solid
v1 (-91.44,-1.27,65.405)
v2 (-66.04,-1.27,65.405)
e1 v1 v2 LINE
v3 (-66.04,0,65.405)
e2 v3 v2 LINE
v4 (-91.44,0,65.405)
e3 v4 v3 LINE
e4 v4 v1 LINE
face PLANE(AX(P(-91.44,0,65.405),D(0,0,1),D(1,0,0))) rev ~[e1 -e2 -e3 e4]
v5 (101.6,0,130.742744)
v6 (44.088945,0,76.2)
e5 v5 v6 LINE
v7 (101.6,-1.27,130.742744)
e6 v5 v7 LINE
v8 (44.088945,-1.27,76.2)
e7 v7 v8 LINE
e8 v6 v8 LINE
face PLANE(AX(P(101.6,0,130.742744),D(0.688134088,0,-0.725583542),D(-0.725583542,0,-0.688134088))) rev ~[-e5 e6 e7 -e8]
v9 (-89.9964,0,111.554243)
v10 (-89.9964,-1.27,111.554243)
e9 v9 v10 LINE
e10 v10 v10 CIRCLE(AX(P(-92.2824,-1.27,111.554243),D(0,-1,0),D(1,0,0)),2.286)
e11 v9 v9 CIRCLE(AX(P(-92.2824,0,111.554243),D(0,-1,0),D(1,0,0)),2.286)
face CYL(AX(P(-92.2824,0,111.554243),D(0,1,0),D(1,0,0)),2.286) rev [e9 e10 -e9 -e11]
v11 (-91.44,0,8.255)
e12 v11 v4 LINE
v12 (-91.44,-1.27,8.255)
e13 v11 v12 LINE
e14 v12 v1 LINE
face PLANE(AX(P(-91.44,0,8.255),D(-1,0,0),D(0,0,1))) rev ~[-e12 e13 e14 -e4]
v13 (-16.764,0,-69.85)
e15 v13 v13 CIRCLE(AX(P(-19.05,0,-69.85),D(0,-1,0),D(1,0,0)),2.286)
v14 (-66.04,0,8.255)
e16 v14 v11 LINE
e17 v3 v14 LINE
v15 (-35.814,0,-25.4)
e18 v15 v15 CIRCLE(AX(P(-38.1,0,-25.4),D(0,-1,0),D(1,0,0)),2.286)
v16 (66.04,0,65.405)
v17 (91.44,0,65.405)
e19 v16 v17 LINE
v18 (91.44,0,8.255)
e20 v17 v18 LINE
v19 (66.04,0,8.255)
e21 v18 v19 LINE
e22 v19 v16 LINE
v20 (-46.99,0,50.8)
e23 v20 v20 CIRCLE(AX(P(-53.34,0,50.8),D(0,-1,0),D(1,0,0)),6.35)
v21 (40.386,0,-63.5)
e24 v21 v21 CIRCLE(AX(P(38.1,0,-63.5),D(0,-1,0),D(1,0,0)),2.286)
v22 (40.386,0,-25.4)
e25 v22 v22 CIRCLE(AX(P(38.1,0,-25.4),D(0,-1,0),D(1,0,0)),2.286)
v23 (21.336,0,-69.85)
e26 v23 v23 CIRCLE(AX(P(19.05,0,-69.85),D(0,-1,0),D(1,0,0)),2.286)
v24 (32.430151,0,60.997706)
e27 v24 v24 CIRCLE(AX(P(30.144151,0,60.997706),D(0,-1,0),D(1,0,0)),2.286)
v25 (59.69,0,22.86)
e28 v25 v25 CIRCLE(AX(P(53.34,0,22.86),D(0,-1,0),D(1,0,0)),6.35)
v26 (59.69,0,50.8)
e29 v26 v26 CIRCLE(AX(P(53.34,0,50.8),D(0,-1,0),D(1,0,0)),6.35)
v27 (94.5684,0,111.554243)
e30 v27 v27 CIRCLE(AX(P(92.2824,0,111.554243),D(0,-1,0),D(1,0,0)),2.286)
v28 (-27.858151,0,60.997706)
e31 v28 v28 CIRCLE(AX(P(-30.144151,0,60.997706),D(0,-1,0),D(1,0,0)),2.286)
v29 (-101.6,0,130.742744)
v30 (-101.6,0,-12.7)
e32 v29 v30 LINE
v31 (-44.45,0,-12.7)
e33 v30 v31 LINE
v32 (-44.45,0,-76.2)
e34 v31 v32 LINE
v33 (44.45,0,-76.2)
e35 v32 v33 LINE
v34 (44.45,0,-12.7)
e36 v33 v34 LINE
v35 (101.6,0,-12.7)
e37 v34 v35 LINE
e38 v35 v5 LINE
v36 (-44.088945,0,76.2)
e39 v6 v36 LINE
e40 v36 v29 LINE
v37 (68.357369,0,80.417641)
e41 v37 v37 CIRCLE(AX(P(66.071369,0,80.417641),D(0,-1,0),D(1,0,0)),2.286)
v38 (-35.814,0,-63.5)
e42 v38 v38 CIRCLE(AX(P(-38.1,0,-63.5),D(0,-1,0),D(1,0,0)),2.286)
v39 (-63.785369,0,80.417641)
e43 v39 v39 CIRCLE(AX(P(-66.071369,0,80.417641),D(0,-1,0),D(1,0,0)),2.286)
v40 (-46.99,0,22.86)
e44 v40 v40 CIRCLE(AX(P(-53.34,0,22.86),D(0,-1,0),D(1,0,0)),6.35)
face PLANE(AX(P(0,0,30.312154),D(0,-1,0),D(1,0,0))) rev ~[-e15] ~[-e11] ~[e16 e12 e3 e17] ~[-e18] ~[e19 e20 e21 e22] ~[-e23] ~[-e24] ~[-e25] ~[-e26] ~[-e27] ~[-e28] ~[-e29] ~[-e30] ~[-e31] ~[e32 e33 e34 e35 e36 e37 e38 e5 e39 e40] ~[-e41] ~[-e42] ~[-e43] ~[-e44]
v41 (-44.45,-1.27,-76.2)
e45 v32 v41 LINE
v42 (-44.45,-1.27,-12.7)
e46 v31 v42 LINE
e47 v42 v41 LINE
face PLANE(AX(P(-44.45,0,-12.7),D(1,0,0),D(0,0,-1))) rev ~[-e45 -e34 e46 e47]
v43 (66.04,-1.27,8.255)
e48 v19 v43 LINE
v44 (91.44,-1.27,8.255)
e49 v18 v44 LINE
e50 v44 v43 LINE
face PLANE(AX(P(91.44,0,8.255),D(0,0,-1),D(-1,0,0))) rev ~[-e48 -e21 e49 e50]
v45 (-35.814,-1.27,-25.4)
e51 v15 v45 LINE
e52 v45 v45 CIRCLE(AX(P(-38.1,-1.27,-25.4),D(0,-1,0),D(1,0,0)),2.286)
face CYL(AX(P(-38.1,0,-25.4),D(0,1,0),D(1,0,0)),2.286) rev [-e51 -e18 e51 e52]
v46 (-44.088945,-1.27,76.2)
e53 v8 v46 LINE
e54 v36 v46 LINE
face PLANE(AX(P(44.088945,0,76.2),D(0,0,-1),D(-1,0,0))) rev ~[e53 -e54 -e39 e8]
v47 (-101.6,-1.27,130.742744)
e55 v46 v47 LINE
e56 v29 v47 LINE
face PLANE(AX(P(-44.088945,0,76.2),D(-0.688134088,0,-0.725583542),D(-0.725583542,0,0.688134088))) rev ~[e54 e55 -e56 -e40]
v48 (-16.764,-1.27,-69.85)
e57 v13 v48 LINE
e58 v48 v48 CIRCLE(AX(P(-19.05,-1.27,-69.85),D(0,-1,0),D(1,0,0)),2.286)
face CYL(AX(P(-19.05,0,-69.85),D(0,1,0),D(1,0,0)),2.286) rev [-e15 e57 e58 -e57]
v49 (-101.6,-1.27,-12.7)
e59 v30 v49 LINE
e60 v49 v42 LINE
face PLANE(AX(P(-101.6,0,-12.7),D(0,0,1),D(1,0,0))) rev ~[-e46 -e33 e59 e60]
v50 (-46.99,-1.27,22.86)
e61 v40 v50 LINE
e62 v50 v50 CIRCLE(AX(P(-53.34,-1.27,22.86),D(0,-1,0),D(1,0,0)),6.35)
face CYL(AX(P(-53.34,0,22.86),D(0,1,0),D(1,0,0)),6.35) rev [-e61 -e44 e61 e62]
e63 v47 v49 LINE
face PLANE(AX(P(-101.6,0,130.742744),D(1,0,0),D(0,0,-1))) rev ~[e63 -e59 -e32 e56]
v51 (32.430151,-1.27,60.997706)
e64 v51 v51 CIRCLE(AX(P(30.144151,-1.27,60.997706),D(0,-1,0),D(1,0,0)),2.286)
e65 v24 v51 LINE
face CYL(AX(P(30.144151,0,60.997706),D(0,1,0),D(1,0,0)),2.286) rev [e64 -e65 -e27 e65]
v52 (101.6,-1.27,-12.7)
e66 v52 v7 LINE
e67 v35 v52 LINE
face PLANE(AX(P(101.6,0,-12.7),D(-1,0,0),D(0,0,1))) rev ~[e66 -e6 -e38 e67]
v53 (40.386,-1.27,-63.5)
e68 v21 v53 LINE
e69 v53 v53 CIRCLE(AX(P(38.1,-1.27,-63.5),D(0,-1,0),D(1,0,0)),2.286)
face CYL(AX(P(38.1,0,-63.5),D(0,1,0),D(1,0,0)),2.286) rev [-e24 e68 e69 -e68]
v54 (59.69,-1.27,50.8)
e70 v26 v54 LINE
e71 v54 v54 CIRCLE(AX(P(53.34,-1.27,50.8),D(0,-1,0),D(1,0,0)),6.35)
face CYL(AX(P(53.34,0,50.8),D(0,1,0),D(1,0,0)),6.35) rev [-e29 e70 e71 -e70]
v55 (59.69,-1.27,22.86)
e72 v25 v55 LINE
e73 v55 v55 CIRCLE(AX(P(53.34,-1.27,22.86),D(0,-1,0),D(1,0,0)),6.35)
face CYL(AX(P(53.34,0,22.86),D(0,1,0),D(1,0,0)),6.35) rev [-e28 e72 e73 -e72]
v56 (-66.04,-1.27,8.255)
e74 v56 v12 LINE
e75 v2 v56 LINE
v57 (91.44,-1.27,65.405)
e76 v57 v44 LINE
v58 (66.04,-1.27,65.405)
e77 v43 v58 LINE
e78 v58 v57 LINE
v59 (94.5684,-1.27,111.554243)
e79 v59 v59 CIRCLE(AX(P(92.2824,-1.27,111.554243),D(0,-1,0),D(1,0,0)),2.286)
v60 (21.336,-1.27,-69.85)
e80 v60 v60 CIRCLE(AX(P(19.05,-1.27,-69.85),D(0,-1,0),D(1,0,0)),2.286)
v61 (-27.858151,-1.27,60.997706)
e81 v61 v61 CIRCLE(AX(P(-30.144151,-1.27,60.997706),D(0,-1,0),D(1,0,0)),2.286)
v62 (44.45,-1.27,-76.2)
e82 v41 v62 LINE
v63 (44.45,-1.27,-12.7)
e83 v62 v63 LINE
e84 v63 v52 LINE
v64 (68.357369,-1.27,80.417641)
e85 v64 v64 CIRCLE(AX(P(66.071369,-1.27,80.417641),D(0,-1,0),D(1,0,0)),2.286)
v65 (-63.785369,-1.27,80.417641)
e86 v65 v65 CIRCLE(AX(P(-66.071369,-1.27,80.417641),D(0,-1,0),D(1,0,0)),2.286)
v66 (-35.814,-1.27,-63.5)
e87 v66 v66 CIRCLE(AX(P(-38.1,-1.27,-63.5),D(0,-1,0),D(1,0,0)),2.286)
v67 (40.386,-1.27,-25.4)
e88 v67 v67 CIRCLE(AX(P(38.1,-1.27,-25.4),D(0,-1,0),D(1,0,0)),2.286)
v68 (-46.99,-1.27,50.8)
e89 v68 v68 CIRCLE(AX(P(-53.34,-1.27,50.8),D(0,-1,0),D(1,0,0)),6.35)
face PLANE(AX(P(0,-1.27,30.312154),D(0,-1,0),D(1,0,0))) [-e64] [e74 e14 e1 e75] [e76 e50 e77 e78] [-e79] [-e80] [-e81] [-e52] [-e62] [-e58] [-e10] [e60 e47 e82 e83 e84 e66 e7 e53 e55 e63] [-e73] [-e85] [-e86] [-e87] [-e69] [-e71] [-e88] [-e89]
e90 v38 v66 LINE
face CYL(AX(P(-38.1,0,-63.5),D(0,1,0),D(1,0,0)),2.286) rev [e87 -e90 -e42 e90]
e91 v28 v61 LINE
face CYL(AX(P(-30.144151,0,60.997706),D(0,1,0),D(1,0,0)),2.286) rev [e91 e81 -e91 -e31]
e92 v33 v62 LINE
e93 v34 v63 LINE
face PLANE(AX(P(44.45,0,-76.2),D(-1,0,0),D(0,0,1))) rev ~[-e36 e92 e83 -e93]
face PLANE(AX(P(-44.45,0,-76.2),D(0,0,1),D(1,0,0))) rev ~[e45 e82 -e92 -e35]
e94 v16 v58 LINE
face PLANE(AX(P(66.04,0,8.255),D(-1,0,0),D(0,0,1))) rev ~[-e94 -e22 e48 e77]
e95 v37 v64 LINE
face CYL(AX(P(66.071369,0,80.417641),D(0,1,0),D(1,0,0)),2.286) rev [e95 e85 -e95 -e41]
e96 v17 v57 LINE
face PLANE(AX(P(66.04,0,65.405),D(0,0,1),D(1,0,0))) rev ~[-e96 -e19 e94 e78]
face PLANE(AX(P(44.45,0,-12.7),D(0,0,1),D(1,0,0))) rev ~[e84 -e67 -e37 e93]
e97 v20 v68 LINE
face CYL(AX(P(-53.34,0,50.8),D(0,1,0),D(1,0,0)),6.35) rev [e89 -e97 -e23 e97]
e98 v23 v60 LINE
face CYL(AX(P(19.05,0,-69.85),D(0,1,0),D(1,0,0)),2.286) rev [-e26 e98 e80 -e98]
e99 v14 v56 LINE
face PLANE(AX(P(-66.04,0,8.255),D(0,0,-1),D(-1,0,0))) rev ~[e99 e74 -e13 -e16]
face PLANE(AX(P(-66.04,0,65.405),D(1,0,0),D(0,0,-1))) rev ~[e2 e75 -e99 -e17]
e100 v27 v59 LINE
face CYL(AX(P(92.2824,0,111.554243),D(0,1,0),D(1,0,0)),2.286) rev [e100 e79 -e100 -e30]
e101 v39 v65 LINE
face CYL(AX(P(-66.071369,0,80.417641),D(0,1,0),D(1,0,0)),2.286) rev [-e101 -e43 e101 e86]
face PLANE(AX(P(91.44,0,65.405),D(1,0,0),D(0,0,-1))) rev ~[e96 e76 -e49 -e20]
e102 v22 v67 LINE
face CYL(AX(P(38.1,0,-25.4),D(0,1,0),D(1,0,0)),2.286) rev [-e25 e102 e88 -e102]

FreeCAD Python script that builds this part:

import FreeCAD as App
import Part
import Sketcher
Q = App.Units.Quantity


def add_polygon(sketch, points):
    """Adds a closed chain of lines whose ends are joined by coincident constraints."""
    first, n = sketch.GeometryCount, len(points)
    for a, b in zip(points, points[1:] + points[:1]):
        sketch.addGeometry(Part.LineSegment(App.Vector(*a, 0), App.Vector(*b, 0)), False)
    for i in range(n):
        sketch.addConstraint(Sketcher.Constraint("Coincident", first + i, 2, first + (i + 1) % n, 1))

doc = App.newDocument("Part")
body = doc.addObject("PartDesign::Body", "Body")

sketch1 = doc.addObject("Sketcher::SketchObject", "Sketch")
body.addObject(sketch1)
sketch1.AttachmentSupport = (doc.XZ_Plane, [""])
sketch1.MapMode = "FlatFace"
add_polygon(sketch1, [(101.6, 130.742744), (44.088945, 76.2), (-44.088945, 76.2), (-101.6, 130.742744), (-101.6, -12.7), (-44.45, -12.7), (-44.45, -76.2), (44.45, -76.2), (44.45, -12.7), (101.6, -12.7)])
sketch1.addGeometry(Part.Circle(App.Vector(-38.1, -63.5, 0), App.Vector(0, 0, 1), 2.286), False)
sketch1.addGeometry(Part.Circle(App.Vector(-19.05, -69.85, 0), App.Vector(0, 0, 1), 2.286), False)
sketch1.addGeometry(Part.Circle(App.Vector(-38.1, -25.4, 0), App.Vector(0, 0, 1), 2.286), False)
sketch1.addGeometry(Part.Circle(App.Vector(19.05, -69.85, 0), App.Vector(0, 0, 1), 2.286), False)
sketch1.addGeometry(Part.Circle(App.Vector(38.1, -63.5, 0), App.Vector(0, 0, 1), 2.286), False)
sketch1.addGeometry(Part.Circle(App.Vector(38.1, -25.4, 0), App.Vector(0, 0, 1), 2.286), False)
add_polygon(sketch1, [(-66.04, 8.255), (-91.44, 8.255), (-91.44, 65.405), (-66.04, 65.405)])
sketch1.addGeometry(Part.Circle(App.Vector(-53.34, 22.86, 0), App.Vector(0, 0, 1), 6.35), False)
sketch1.addGeometry(Part.Circle(App.Vector(-53.34, 50.8, 0), App.Vector(0, 0, 1), 6.35), False)
sketch1.addGeometry(Part.Circle(App.Vector(-30.144151, 60.997706, 0), App.Vector(0, 0, 1), 2.286), False)
sketch1.addGeometry(Part.Circle(App.Vector(-66.071369, 80.417641, 0), App.Vector(0, 0, 1), 2.286), False)
sketch1.addGeometry(Part.Circle(App.Vector(-92.2824, 111.554243, 0), App.Vector(0, 0, 1), 2.286), False)
sketch1.addGeometry(Part.Circle(App.Vector(30.144151, 60.997706, 0), App.Vector(0, 0, 1), 2.286), False)
sketch1.addGeometry(Part.Circle(App.Vector(53.34, 22.86, 0), App.Vector(0, 0, 1), 6.35), False)
add_polygon(sketch1, [(91.44, 65.405), (91.44, 8.255), (66.04, 8.255), (66.04, 65.405)])
sketch1.addGeometry(Part.Circle(App.Vector(53.34, 50.8, 0), App.Vector(0, 0, 1), 6.35), False)
sketch1.addGeometry(Part.Circle(App.Vector(66.071369, 80.417641, 0), App.Vector(0, 0, 1), 2.286), False)
sketch1.addGeometry(Part.Circle(App.Vector(92.2824, 111.554243, 0), App.Vector(0, 0, 1), 2.286), False)
sketch1.addConstraint(Sketcher.Constraint("Horizontal", 1))
sketch1.addConstraint(Sketcher.Constraint("Vertical", 3))
sketch1.addConstraint(Sketcher.Constraint("Horizontal", 4))
sketch1.addConstraint(Sketcher.Constraint("Vertical", 5))
sketch1.addConstraint(Sketcher.Constraint("Horizontal", 6))
sketch1.addConstraint(Sketcher.Constraint("Vertical", 7))
sketch1.addConstraint(Sketcher.Constraint("Horizontal", 8))
sketch1.addConstraint(Sketcher.Constraint("Vertical", 9))
sketch1.addConstraint(Sketcher.Constraint("Horizontal", 16))
sketch1.addConstraint(Sketcher.Constraint("Vertical", 17))
sketch1.addConstraint(Sketcher.Constraint("Horizontal", 18))
sketch1.addConstraint(Sketcher.Constraint("Vertical", 19))
sketch1.addConstraint(Sketcher.Constraint("Vertical", 27))
sketch1.addConstraint(Sketcher.Constraint("Horizontal", 28))
sketch1.addConstraint(Sketcher.Constraint("Vertical", 29))
sketch1.addConstraint(Sketcher.Constraint("Horizontal", 30))
sketch1.addConstraint(Sketcher.Constraint("Equal", 10, 11))
sketch1.addConstraint(Sketcher.Constraint("Equal", 11, 12))
sketch1.addConstraint(Sketcher.Constraint("Equal", 12, 13))
sketch1.addConstraint(Sketcher.Constraint("Equal", 13, 14))
sketch1.addConstraint(Sketcher.Constraint("Equal", 14, 15))
sketch1.addConstraint(Sketcher.Constraint("Equal", 20, 21))
sketch1.addConstraint(Sketcher.Constraint("Equal", 15, 22))
sketch1.addConstraint(Sketcher.Constraint("Equal", 22, 23))
sketch1.addConstraint(Sketcher.Constraint("Equal", 23, 24))
sketch1.addConstraint(Sketcher.Constraint("Equal", 24, 25))
sketch1.addConstraint(Sketcher.Constraint("Equal", 21, 26))
sketch1.addConstraint(Sketcher.Constraint("Equal", 26, 31))
sketch1.addConstraint(Sketcher.Constraint("Equal", 25, 32))
sketch1.addConstraint(Sketcher.Constraint("Equal", 32, 33))
sketch1.addConstraint(Sketcher.Constraint("Symmetric", 11, 3, 13, 3, -2))
sketch1.addConstraint(Sketcher.Constraint("Symmetric", 10, 3, 14, 3, -2))
sketch1.addConstraint(Sketcher.Constraint("Symmetric", 12, 3, 15, 3, -2))
sketch1.addConstraint(Sketcher.Constraint("Symmetric", 22, 3, 25, 3, -2))
sketch1.addConstraint(Sketcher.Constraint("Symmetric", 20, 3, 26, 3, -2))
sketch1.addConstraint(Sketcher.Constraint("Symmetric", 21, 3, 31, 3, -2))
sketch1.addConstraint(Sketcher.Constraint("Symmetric", 23, 3, 32, 3, -2))
sketch1.addConstraint(Sketcher.Constraint("Symmetric", 24, 3, 33, 3, -2))
sketch1.addConstraint(Sketcher.Constraint("Symmetric", 4, 2, 7, 2, -2))
sketch1.addConstraint(Sketcher.Constraint("Symmetric", 2, 2, 9, 2, -2))
sketch1.addConstraint(Sketcher.Constraint("Symmetric", 16, 2, 27, 2, -2))
sketch1.addConstraint(Sketcher.Constraint("Symmetric", 18, 2, 29, 2, -2))
sketch1.addConstraint(Sketcher.Constraint("Vertical", 10, 3, 12, 3))
sketch1.addConstraint(Sketcher.Constraint("Vertical", 20, 3, 21, 3))
sketch1.addConstraint(Sketcher.Constraint("Equal", 8, 17))
sketch1.addConstraint(Sketcher.Constraint("Equal", 0, 2))
sketch1.addConstraint(Sketcher.Constraint("Diameter", 20, Q("0.5 in")))
sketch1.addConstraint(Sketcher.Constraint("Diameter", 10, Q("0.18 in")))
sketch1.addConstraint(Sketcher.Constraint("DistanceX", 16, 2, 16, 1, Q("1 in")))
sketch1.addConstraint(Sketcher.Constraint("DistanceX", 6, 1, 6, 2, Q("3.5 in")))
sketch1.addConstraint(Sketcher.Constraint("DistanceY", 5, 2, 5, 1, Q("2.5 in")))
sketch1.addConstraint(Sketcher.Constraint("DistanceY", 12, 3, -1, 1, Q("1 in")))
sketch1.addConstraint(Sketcher.Constraint("DistanceY", -1, 1, 21, 3, Q("2 in")))
sketch1.addConstraint(Sketcher.Constraint("DistanceY", -1, 1, 0, 2, Q("3 in")))
sketch1.addConstraint(Sketcher.Constraint("DistanceX", 2, 2, -1, 1, Q("4 in")))
sketch1.addConstraint(Sketcher.Constraint("DistanceY", 5, 2, -1, 1, Q("3 in")))
sketch1.addConstraint(Sketcher.Constraint("DistanceX", 10, 3, 14, 3, Q("3 in")))
sketch1.addConstraint(Sketcher.Constraint("DistanceY", 10, 3, 3, 2, Q("2 in")))
sketch1.addConstraint(Sketcher.Constraint("DistanceX", 4, 2, 11, 3, Q("1 in")))
sketch1.addConstraint(Sketcher.Constraint("DistanceX", 20, 3, -1, 1, Q("2.1 in")))
sketch1.addConstraint(Sketcher.Constraint("DistanceY", -1, 1, 20, 3, Q("0.9 in")))
sketch1.addConstraint(Sketcher.Constraint("DistanceX", 16, 2, -1, 1, Q("3.6 in")))
sketch1.addConstraint(Sketcher.Constraint("DistanceY", 11, 3, -1, 1, Q("2.75 in")))
sketch1.addConstraint(Sketcher.Constraint("DistanceY", -1, 1, 16, 2, Q("0.325 in")))
sketch1.addConstraint(Sketcher.Constraint("DistanceX", 1, 2, 1, 1, Q("88.17789 mm")))
sketch1.addConstraint(Sketcher.Constraint("DistanceX", 24, 3, -1, 1, Q("92.2824 mm")))
sketch1.addConstraint(Sketcher.Constraint("DistanceY", 23, 3, 24, 3, Q("31.136602 mm")))
sketch1.addConstraint(Sketcher.Constraint("DistanceY", 24, 3, 2, 2, Q("19.188501 mm")))
sketch1.addConstraint(Sketcher.Constraint("DistanceY", 3, 2, 3, 1, Q("143.442744 mm")))
sketch1.addConstraint(Sketcher.Constraint("DistanceX", 22, 3, -1, 1, Q("30.144151 mm")))
sketch1.addConstraint(Sketcher.Constraint("DistanceX", 23, 3, -1, 1, Q("66.071369 mm")))
sketch1.addConstraint(Sketcher.Constraint("DistanceY", -1, 1, 22, 3, Q("60.997706 mm")))
pad1 = doc.addObject("PartDesign::Pad", "Pad")
body.addObject(pad1)
pad1.Profile = sketch1
pad1.Length = Q("0.05 in")

doc.recompute()
